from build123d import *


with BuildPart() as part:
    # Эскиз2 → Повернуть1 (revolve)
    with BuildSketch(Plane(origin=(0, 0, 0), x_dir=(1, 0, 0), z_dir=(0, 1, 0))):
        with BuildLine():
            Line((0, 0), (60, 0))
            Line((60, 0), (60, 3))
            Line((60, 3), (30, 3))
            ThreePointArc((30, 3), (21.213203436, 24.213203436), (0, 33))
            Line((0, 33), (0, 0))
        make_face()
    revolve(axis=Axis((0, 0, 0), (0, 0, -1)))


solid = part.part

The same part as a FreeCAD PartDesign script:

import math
import FreeCAD as App
import Part
import Sketcher
Q = App.Units.Quantity

doc = App.newDocument("Part")
params = doc.addObject("Spreadsheet::Sheet", "Params")
for row, (alias, value) in enumerate([
    ("sketch1_radius", "30 mm"),
    ("sketch1_width", "60 mm"),
    ("sketch1_height", "3 mm"),
    ("revolution_angle", "360 deg"),
], start=1):
    params.set(f"A{row}", alias)
    params.set(f"B{row}", "=" + value)
    params.setAlias(f"B{row}", alias)

body = doc.addObject("PartDesign::Body", "Body")

# Sketch on XZ plane
sketch1 = body.newObject("Sketcher::SketchObject", "Sketch")
sketch1.AttachmentSupport = (doc.getObject("XZ_Plane"), [""])
sketch1.MapMode = "FlatFace"
sketch1.addGeometry([
    Part.LineSegment(App.Vector(0, 0, 0), App.Vector(60, 0, 0)),  # 0
    Part.LineSegment(App.Vector(60, 0, 0), App.Vector(60, -3, 0)),  # 1
    Part.LineSegment(App.Vector(60, -3, 0), App.Vector(30, -3, 0)),  # 2
    Part.ArcOfCircle(Part.Circle(App.Vector(0, -3, 0), App.Vector(0, 0, 1), 30), math.radians(-90), math.radians(0)),  # 3
    Part.LineSegment(App.Vector(0, -33, 0), App.Vector(0, 0, 0)),  # 4
], False)
sketch1.addConstraint([
    Sketcher.Constraint("Coincident", 0, 2, 1, 1),
    Sketcher.Constraint("Coincident", 1, 2, 2, 1),
    Sketcher.Constraint("Coincident", 2, 2, 3, 2),
    Sketcher.Constraint("Coincident", 3, 1, 4, 1),
    Sketcher.Constraint("Coincident", 4, 2, 0, 1),
    Sketcher.Constraint("Horizontal", 0),
    Sketcher.Constraint("Vertical", 1),
    Sketcher.Constraint("Horizontal", 2),
    Sketcher.Constraint("Vertical", 4),
    Sketcher.Constraint("Coincident", 4, 2, -1, 1),
    Sketcher.Constraint("PointOnObject", 3, 3, -2),
    Sketcher.Constraint("Horizontal", 3, 3, 1, 2),
    Sketcher.Constraint("Radius", 3, Q("30 mm")),
    Sketcher.Constraint("DistanceX", 0, 1, 0, 2, Q("60 mm")),
    Sketcher.Constraint("DistanceY", 1, 2, 1, 1, Q("3 mm")),
])
sketch1.setExpression("Constraints[12]", "Params.sketch1_radius")
sketch1.setExpression("Constraints[13]", "Params.sketch1_width")
sketch1.setExpression("Constraints[14]", "Params.sketch1_height")
revolution = body.newObject("PartDesign::Revolution", "Revolution")
revolution.Profile = sketch1
revolution.ReferenceAxis = (sketch1, ["V_Axis"])
revolution.setExpression("Angle", "Params.revolution_angle")

doc.recompute()
